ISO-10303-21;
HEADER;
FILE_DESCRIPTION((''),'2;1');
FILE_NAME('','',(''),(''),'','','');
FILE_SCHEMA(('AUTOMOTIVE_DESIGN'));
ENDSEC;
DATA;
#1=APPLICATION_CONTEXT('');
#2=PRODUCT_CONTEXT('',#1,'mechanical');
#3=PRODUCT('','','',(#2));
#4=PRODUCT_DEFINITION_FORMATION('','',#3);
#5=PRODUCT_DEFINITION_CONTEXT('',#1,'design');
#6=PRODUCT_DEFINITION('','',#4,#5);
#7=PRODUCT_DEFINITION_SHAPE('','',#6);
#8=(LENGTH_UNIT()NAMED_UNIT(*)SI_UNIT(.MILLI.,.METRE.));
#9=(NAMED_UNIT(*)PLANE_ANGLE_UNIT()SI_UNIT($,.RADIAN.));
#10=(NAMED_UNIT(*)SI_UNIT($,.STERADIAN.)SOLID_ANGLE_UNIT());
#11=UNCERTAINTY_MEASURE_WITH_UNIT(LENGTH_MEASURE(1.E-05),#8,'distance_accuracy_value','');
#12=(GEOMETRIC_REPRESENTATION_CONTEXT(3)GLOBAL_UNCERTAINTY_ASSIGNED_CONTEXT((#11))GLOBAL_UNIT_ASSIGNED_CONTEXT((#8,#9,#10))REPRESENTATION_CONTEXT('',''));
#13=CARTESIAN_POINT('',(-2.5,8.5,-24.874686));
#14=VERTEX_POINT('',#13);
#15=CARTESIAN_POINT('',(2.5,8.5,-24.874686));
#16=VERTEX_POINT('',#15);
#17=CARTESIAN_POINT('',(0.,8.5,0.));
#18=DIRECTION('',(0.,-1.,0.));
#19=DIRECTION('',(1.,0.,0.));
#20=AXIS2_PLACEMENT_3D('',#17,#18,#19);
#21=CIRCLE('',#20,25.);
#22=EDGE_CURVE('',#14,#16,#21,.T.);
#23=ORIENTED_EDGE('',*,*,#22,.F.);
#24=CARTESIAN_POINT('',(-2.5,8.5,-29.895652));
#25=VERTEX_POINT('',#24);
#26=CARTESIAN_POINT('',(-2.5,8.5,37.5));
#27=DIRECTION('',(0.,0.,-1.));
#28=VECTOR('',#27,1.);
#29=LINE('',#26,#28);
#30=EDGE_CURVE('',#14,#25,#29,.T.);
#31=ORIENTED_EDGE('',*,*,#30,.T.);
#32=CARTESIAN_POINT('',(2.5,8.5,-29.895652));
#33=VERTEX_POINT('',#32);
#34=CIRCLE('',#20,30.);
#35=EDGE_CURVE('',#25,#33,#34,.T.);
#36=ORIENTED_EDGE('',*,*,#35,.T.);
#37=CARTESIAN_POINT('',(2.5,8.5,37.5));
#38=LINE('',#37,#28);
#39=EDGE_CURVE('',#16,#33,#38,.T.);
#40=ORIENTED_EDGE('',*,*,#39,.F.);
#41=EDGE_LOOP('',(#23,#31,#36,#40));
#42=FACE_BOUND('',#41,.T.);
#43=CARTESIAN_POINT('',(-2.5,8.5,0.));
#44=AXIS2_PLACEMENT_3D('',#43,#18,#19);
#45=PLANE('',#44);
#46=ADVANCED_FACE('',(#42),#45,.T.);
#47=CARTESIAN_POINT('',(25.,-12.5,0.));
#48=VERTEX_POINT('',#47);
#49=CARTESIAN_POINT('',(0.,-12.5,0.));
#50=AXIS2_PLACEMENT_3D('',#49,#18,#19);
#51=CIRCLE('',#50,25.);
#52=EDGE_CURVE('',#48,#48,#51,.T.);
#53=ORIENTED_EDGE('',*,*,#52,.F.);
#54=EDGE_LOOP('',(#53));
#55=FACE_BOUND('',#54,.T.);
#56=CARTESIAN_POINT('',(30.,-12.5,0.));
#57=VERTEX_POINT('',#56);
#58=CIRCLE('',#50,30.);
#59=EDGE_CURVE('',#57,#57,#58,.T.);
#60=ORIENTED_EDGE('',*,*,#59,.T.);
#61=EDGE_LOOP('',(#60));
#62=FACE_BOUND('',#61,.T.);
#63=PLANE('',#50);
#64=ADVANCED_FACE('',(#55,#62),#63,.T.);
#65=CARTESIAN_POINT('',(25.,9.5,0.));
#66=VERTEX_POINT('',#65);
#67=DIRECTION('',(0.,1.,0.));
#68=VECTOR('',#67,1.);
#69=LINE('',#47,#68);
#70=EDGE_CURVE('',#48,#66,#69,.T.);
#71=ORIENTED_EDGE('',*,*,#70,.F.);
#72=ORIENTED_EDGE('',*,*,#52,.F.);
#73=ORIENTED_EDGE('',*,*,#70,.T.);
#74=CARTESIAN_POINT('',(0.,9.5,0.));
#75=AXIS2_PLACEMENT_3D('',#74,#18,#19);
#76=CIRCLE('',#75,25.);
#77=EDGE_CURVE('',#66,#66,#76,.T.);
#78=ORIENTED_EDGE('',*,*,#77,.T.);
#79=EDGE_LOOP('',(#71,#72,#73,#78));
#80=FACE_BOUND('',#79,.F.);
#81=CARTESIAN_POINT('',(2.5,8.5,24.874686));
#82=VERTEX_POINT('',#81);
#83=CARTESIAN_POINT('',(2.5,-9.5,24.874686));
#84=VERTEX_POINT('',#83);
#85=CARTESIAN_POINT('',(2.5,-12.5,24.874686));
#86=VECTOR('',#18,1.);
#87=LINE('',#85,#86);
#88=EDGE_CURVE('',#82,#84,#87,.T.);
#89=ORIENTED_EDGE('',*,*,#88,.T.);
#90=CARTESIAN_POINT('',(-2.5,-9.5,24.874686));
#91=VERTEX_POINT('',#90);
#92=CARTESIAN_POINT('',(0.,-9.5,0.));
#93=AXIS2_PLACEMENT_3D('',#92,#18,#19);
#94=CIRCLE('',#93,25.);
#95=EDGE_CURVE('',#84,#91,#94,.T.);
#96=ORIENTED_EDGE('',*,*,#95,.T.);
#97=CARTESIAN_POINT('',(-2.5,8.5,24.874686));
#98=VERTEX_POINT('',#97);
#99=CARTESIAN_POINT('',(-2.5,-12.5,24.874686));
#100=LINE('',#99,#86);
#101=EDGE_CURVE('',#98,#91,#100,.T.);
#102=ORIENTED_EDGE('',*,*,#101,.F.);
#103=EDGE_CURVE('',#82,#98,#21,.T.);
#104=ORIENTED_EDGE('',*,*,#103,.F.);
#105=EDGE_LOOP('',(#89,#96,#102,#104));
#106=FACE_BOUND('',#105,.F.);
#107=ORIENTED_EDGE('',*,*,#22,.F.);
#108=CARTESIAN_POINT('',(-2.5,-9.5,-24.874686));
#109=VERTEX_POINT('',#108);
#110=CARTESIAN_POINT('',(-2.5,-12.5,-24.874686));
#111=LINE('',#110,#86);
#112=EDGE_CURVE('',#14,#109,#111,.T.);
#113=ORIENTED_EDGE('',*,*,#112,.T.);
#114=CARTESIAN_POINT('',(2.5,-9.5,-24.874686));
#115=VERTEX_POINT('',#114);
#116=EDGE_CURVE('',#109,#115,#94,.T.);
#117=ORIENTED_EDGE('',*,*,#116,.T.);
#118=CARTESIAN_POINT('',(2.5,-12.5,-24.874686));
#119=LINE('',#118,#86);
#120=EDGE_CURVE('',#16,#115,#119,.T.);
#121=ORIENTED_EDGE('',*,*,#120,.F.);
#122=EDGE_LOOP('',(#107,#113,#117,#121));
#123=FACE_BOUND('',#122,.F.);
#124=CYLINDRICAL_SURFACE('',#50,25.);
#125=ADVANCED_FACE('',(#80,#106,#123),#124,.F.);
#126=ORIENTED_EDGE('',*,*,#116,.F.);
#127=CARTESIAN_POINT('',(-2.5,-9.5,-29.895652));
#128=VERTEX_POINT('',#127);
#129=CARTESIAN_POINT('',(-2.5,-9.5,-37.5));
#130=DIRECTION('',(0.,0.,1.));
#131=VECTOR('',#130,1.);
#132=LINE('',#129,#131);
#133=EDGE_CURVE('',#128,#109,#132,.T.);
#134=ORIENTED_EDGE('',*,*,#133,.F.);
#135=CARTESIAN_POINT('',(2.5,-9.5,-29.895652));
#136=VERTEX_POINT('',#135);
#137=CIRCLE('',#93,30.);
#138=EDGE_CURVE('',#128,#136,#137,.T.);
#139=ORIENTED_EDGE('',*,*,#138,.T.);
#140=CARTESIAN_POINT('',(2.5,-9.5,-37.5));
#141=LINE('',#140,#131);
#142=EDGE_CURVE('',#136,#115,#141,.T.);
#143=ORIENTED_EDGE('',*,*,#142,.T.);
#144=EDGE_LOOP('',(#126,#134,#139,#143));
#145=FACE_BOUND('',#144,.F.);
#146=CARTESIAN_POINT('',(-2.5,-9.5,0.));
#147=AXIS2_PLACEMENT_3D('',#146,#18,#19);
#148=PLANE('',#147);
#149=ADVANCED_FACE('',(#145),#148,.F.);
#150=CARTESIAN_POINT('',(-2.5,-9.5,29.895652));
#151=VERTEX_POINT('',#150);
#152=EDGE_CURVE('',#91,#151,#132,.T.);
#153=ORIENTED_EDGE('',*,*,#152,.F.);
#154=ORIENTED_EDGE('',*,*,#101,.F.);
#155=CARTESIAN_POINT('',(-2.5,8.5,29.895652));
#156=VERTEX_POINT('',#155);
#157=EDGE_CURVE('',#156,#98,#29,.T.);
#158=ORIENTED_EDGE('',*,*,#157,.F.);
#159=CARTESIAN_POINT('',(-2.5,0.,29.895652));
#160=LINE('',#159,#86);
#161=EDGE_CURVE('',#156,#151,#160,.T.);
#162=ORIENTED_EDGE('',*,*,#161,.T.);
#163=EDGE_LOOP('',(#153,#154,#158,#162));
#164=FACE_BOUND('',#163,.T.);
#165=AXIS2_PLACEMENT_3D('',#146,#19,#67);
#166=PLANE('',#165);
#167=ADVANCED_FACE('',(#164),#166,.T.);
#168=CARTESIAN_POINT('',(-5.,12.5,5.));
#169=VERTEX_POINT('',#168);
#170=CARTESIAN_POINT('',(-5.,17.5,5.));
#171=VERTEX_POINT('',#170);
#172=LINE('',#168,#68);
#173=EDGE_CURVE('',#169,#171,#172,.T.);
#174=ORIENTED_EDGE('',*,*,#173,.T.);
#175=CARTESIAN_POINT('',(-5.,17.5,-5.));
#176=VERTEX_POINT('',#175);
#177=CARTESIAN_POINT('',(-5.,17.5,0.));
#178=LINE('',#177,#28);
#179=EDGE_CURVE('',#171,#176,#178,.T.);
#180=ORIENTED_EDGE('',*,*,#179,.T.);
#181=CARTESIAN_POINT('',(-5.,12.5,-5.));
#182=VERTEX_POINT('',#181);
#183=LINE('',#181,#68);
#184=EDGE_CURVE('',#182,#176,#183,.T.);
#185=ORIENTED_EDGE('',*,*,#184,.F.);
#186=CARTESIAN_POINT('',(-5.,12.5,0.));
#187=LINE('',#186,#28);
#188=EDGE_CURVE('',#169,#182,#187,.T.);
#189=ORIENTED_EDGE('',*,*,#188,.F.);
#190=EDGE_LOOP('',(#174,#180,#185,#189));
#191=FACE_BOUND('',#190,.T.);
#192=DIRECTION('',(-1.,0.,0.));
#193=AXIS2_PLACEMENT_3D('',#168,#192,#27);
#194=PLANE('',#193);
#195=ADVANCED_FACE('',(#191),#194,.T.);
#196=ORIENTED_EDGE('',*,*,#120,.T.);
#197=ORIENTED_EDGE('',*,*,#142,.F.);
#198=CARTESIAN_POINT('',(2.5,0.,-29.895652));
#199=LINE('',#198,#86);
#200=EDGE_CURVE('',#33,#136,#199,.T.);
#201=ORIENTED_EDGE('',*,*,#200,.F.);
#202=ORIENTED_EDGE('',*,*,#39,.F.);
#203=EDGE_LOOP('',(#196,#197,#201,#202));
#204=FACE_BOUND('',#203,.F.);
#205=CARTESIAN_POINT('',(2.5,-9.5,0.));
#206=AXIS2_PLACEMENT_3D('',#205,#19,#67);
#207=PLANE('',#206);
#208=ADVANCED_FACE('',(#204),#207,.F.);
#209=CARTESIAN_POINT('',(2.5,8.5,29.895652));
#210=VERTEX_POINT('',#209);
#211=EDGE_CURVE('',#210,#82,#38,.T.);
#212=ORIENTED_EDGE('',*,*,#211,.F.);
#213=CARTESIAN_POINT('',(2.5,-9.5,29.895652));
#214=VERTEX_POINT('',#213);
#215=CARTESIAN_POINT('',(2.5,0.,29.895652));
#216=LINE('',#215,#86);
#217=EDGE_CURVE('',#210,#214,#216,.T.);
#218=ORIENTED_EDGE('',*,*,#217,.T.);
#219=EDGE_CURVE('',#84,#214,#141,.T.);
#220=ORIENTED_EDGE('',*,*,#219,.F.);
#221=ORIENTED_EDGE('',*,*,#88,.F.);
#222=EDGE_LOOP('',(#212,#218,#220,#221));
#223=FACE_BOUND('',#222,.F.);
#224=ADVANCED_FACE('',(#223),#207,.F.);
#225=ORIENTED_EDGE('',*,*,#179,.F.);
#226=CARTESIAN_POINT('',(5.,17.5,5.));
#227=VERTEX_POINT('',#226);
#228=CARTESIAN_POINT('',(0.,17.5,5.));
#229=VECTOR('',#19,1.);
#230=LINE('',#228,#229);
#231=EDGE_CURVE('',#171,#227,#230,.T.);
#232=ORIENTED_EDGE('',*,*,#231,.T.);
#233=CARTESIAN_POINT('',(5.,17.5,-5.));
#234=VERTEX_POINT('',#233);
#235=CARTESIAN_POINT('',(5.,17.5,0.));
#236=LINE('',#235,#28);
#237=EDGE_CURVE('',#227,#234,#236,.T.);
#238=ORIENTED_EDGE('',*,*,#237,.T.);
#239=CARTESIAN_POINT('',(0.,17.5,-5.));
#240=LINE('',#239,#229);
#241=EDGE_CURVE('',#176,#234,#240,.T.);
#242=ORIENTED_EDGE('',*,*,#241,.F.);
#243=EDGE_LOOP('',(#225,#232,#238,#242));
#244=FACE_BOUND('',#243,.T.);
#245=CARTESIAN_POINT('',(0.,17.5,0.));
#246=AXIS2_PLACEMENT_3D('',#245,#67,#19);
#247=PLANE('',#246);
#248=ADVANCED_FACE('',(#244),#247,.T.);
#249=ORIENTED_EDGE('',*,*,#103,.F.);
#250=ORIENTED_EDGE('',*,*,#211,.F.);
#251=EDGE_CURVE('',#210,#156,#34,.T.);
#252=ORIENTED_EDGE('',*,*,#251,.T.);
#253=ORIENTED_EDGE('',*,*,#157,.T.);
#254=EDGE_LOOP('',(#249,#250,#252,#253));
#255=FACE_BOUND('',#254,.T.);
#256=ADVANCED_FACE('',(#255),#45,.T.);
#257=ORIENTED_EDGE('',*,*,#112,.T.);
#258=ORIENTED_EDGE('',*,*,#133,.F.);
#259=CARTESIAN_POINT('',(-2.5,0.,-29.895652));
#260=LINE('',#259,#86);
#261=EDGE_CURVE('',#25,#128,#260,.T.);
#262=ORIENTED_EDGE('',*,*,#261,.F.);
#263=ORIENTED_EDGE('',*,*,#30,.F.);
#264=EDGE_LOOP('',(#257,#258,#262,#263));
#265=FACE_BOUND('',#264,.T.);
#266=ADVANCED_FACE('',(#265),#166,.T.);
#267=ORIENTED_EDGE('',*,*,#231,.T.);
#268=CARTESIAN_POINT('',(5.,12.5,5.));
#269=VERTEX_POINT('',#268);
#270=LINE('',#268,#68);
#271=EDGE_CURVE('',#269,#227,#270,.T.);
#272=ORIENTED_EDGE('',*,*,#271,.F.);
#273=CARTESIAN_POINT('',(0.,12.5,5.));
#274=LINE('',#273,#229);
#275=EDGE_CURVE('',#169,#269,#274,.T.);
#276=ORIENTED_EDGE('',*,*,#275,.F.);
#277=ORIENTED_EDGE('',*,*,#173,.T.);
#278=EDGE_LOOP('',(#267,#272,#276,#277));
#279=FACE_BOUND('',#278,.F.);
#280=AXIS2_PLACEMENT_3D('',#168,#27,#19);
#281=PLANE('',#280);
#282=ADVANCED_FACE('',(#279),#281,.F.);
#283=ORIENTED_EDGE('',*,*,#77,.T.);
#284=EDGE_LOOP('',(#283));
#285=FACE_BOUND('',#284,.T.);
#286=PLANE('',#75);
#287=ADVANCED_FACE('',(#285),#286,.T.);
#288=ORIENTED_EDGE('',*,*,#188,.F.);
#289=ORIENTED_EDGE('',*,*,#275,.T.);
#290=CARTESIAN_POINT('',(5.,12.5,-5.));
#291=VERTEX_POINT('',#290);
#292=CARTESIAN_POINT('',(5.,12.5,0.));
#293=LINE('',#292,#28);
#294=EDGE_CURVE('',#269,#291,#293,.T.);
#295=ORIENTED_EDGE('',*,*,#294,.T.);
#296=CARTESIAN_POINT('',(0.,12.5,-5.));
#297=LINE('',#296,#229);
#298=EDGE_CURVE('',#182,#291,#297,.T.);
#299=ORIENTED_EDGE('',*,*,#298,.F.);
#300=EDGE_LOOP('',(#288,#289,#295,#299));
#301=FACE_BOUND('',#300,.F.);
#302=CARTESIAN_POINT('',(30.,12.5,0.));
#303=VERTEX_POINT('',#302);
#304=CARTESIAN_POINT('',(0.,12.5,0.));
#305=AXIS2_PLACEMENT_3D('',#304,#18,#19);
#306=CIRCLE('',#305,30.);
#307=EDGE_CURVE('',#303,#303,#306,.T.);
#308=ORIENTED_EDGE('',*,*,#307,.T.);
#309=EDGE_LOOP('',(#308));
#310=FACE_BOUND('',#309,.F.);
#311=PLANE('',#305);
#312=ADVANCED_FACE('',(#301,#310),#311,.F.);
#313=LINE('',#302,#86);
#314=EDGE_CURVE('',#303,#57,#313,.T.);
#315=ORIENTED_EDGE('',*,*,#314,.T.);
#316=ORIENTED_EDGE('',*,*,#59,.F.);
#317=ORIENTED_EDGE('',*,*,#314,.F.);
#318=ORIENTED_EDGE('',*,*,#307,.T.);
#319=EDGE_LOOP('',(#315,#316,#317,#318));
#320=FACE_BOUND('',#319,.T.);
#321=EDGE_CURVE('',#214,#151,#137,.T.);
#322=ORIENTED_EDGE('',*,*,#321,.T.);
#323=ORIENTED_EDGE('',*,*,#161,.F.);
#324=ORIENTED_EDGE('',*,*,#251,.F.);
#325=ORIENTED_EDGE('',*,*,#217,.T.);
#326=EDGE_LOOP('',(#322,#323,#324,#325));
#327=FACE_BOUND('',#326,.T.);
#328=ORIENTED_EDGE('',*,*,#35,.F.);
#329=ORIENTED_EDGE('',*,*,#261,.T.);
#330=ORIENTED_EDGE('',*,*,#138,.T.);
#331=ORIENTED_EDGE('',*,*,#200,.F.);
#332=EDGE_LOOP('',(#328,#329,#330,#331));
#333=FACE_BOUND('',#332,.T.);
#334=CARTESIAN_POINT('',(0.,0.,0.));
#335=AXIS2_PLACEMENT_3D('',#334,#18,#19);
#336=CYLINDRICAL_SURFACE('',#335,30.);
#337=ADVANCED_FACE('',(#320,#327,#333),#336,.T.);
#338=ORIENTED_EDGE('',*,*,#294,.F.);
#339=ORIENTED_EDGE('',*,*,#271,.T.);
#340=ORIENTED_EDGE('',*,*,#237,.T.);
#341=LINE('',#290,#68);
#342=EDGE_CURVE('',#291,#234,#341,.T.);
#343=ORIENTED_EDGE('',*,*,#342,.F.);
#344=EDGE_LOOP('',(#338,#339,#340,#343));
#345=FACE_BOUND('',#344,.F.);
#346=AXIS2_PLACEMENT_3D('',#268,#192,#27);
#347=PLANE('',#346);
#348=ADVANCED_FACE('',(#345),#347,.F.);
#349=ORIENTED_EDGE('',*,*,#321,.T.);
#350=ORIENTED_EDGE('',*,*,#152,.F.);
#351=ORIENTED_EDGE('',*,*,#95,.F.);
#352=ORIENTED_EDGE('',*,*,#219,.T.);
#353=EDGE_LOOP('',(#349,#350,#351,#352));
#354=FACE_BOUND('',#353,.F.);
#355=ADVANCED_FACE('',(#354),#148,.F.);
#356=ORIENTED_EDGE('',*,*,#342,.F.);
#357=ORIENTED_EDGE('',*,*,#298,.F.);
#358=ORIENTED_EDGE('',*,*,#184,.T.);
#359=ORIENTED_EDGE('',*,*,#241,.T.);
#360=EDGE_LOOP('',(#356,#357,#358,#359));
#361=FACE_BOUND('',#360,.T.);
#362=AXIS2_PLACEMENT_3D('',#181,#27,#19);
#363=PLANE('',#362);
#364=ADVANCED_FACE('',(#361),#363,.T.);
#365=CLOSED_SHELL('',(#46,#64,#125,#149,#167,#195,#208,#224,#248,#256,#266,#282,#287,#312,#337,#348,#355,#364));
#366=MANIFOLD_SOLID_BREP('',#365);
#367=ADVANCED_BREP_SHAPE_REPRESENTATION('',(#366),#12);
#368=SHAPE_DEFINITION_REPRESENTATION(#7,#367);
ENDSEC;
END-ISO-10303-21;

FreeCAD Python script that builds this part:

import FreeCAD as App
import Part
import Sketcher


def add_polygon(sketch, points):
    """Adds a closed chain of lines whose ends are joined by coincident constraints."""
    first, n = sketch.GeometryCount, len(points)
    for a, b in zip(points, points[1:] + points[:1]):
        sketch.addGeometry(Part.LineSegment(App.Vector(*a, 0), App.Vector(*b, 0)), False)
    for i in range(n):
        sketch.addConstraint(Sketcher.Constraint("Coincident", first + i, 2, first + (i + 1) % n, 1))

doc = App.newDocument("Part")
body = doc.addObject("PartDesign::Body", "Body")

# Sketch on XY plane
sketch1 = doc.addObject("Sketcher::SketchObject", "Sketch")
body.addObject(sketch1)
sketch1.AttachmentSupport = (doc.XY_Plane, [""])
sketch1.MapMode = "FlatFace"
add_polygon(sketch1, [(-2, 8), (-2, -10), (2, -10), (2, 8)])  # lines 0-3
sketch1.addConstraint([
    Sketcher.Constraint("Vertical", 0),
    Sketcher.Constraint("Horizontal", 1),
    Sketcher.Constraint("Vertical", 2),
    Sketcher.Constraint("Horizontal", 3),
    Sketcher.Constraint("DistanceX", 1, 1, 1, 2, 5.0),
    Sketcher.Constraint("DistanceY", 0, 2, 0, 1, 18.0),
    Sketcher.Constraint("DistanceX", 0, 2, -1, 1, 2.5),
    Sketcher.Constraint("DistanceY", 0, 2, -1, 1, 9.5),
])
pad1 = doc.addObject("PartDesign::Pad", "Pad")
body.addObject(pad1)
pad1.Profile = sketch1
pad1.Length = 75
pad1.Midplane = True
body2 = doc.addObject("PartDesign::Body", "Body001")

# Sketch on XZ plane
sketch2 = doc.addObject("Sketcher::SketchObject", "Sketch001")
body2.addObject(sketch2)
sketch2.AttachmentSupport = (doc.getObject("XZ_Plane001"), [""])
sketch2.MapMode = "FlatFace"
sketch2.addGeometry(Part.Circle(App.Vector(0, 0, 0), App.Vector(0, 0, 1), 30), False)
sketch2.addConstraint([
    Sketcher.Constraint("Coincident", 0, 3, -1, 1),
    Sketcher.Constraint("Diameter", 0, 60.0),
])
pad2 = doc.addObject("PartDesign::Pad", "Pad001")
body2.addObject(pad2)
pad2.Profile = sketch2
pad2.Length = 25
pad2.Midplane = True

# Sketch on XZ plane
sketch3 = doc.addObject("Sketcher::SketchObject", "Sketch002")
body2.addObject(sketch3)
sketch3.AttachmentSupport = (doc.getObject("XZ_Plane001"), [""])
sketch3.MapMode = "FlatFace"
sketch3.AttachmentOffset = App.Placement(App.Vector(0, 0, 12.5), App.Rotation())
sketch3.addGeometry(Part.Circle(App.Vector(0, 0, 0), App.Vector(0, 0, 1), 25), False)
sketch3.addConstraint([
    Sketcher.Constraint("Coincident", 0, 3, -1, 1),
    Sketcher.Constraint("Diameter", 0, 50.0),
])
pocket1 = doc.addObject("PartDesign::Pocket", "Pocket")
body2.addObject(pocket1)
pocket1.Profile = sketch3
pocket1.Length = 22

# Sketch on XZ plane
sketch4 = doc.addObject("Sketcher::SketchObject", "Sketch003")
body2.addObject(sketch4)
sketch4.AttachmentSupport = (doc.getObject("XZ_Plane001"), [""])
sketch4.MapMode = "FlatFace"
sketch4.AttachmentOffset = App.Placement(App.Vector(0, 0, -12.5), App.Rotation())
add_polygon(sketch4, [(-5, -5), (-5, 5), (5, 5), (5, -5)])  # lines 0-3
sketch4.addConstraint([
    Sketcher.Constraint("Vertical", 0),
    Sketcher.Constraint("Horizontal", 1),
    Sketcher.Constraint("Vertical", 2),
    Sketcher.Constraint("Horizontal", 3),
    Sketcher.Constraint("Symmetric", 0, 2, 2, 2, -1, 1),
    Sketcher.Constraint("Equal", 3, 0),
    Sketcher.Constraint("DistanceX", 1, 1, 1, 2, 10.0),
])
pad3 = doc.addObject("PartDesign::Pad", "Pad002")
body2.addObject(pad3)
pad3.Profile = sketch4
pad3.Length = 5
pad3.Reversed = True
doc.recompute()

boolean = doc.addObject("PartDesign::Boolean", "Boolean")
body2.addObject(boolean)
boolean.Type = "Cut"
boolean.addObjects([body])

doc.recompute()
